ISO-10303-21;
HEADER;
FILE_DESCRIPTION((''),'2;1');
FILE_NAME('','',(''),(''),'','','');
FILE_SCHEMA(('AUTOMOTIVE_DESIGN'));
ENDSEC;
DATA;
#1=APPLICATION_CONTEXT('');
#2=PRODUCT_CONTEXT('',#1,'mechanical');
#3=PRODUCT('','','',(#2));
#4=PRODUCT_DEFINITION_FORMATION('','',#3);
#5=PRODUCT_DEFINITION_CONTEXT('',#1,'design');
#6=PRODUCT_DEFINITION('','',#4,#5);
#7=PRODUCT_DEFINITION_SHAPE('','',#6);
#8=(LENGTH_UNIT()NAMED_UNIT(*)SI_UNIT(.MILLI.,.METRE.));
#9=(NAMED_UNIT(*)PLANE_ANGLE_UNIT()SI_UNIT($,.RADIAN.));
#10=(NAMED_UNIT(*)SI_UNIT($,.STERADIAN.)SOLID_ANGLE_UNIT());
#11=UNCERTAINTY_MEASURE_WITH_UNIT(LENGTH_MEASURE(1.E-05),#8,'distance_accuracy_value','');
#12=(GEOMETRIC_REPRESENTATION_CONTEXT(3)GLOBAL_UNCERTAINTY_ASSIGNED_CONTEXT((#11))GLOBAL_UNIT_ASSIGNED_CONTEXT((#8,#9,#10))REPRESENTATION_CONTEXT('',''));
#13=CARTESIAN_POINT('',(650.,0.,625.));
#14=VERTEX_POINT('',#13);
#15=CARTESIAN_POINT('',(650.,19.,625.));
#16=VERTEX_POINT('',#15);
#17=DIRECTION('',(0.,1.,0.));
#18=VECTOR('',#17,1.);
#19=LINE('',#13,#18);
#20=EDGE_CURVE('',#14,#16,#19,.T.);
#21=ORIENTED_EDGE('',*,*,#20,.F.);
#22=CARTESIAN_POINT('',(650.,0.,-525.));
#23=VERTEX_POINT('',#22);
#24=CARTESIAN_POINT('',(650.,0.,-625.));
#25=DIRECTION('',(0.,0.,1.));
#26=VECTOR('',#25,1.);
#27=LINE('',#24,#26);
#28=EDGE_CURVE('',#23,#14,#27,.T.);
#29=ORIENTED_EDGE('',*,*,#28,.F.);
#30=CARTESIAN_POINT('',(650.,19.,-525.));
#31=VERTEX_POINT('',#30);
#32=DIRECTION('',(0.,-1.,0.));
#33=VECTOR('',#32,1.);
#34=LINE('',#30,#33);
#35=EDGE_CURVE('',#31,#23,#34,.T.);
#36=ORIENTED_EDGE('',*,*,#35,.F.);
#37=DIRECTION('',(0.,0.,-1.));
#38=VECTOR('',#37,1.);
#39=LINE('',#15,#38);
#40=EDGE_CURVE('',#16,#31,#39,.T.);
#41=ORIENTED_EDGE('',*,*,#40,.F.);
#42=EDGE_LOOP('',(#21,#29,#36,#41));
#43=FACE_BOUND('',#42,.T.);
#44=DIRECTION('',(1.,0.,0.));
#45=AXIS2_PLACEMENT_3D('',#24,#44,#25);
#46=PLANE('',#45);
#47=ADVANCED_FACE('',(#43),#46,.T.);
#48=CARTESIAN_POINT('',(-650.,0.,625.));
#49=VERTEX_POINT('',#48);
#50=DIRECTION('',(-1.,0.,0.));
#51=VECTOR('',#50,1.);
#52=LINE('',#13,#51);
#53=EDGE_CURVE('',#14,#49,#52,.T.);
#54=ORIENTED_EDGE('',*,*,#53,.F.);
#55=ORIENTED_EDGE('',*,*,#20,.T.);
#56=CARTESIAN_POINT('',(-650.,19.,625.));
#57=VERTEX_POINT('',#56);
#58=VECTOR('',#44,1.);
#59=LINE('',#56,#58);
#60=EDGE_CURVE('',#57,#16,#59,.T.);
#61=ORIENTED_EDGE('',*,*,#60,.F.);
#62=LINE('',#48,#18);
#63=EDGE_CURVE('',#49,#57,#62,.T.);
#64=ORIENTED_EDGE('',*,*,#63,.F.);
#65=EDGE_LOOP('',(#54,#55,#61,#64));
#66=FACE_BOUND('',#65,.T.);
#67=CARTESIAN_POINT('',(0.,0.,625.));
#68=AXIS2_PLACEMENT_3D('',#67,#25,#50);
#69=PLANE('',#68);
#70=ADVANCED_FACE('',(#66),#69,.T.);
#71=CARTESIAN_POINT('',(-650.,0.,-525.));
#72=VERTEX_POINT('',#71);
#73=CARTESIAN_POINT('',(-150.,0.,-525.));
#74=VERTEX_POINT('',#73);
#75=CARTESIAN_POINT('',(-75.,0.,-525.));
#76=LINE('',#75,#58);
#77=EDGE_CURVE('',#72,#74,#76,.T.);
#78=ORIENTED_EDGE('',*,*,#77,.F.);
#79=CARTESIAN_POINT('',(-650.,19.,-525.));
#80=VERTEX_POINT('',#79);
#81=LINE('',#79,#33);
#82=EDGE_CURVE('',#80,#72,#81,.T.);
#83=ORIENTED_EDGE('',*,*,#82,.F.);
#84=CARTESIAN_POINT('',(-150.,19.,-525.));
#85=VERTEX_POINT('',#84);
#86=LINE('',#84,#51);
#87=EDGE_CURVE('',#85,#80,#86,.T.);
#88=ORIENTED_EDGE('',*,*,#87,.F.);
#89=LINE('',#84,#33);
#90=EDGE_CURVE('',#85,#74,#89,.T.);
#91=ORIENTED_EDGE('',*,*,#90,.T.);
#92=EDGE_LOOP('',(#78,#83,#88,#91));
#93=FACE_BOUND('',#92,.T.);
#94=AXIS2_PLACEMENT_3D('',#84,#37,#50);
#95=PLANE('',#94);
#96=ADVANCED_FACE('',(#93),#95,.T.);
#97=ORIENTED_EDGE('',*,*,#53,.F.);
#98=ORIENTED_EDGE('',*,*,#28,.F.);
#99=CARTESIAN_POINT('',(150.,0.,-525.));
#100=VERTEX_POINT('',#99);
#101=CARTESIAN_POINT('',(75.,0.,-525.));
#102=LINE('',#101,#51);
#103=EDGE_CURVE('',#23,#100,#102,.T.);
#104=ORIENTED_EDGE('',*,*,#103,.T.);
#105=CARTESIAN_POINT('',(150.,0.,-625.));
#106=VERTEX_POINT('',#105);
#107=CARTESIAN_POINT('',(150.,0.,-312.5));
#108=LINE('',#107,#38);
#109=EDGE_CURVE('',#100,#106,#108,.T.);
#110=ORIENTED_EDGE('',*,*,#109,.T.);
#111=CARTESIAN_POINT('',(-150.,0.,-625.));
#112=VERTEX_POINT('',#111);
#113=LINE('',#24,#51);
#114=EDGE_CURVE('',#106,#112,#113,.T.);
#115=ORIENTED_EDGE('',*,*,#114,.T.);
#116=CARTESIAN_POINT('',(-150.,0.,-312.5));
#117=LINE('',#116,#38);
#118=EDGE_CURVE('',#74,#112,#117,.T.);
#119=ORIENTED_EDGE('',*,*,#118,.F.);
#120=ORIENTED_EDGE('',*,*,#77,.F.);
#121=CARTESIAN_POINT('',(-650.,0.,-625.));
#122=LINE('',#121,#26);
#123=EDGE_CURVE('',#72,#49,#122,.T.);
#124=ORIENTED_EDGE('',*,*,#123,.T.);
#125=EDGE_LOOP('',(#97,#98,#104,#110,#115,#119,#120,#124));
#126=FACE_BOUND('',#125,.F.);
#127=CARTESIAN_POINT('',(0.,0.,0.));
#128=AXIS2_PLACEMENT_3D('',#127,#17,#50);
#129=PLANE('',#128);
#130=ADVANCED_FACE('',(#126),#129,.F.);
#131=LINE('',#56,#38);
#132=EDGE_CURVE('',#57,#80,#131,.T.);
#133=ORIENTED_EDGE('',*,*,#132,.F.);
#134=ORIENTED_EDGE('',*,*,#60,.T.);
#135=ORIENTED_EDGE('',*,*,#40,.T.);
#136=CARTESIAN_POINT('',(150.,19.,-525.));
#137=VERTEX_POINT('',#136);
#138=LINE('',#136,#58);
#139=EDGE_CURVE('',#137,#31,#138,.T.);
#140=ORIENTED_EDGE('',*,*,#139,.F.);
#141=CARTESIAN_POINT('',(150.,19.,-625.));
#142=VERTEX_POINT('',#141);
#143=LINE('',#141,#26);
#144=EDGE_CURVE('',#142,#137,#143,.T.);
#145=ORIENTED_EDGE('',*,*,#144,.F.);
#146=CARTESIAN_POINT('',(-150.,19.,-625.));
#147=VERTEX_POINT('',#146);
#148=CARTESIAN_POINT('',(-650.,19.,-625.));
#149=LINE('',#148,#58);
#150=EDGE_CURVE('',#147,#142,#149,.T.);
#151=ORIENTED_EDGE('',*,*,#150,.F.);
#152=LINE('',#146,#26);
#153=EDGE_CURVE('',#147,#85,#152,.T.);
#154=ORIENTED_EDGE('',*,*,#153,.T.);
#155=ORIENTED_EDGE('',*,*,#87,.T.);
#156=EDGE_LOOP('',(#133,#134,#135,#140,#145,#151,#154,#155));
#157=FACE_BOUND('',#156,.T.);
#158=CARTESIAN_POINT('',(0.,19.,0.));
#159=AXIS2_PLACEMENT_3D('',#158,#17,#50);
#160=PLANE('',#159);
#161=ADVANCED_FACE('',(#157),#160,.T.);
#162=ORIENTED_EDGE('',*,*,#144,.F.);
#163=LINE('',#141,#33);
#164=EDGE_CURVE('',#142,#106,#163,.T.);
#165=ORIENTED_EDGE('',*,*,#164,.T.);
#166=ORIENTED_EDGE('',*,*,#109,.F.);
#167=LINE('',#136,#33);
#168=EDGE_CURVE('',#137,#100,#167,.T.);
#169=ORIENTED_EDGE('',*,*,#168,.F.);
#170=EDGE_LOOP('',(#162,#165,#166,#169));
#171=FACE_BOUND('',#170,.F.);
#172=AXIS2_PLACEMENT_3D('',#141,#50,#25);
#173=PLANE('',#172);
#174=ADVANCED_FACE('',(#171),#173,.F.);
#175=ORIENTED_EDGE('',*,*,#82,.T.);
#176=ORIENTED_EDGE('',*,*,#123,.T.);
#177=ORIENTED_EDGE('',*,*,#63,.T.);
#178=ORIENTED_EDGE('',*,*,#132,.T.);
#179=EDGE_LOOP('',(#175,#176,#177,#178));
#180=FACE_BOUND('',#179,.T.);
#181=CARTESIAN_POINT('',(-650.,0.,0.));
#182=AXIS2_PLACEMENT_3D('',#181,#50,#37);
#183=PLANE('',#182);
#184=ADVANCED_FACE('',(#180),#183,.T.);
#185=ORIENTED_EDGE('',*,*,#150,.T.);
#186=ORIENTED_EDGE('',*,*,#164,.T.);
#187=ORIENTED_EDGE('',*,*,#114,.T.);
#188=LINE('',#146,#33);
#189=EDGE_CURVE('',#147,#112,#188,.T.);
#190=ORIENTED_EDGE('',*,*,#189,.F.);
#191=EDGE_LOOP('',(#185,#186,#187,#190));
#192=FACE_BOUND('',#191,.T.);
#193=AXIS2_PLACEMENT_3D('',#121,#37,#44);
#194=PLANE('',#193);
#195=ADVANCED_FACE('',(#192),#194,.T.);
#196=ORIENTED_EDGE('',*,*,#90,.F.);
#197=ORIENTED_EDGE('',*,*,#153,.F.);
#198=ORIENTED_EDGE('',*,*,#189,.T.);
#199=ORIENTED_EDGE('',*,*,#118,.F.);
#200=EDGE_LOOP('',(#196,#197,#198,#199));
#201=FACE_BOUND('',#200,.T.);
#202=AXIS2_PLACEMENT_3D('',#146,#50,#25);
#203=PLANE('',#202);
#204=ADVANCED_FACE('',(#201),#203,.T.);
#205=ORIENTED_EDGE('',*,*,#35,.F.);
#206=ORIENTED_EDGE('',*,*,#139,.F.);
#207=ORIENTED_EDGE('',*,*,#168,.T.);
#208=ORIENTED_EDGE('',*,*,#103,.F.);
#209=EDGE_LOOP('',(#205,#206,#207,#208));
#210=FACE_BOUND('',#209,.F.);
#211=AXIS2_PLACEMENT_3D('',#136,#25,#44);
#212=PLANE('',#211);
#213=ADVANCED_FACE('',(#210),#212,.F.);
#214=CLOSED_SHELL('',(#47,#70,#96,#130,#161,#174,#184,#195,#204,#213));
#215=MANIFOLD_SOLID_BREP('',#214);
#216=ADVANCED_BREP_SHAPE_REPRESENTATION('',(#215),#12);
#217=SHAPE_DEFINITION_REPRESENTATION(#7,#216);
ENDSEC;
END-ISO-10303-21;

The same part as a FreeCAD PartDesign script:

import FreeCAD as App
import Part
import Sketcher

doc = App.newDocument("Part")
body = doc.addObject("PartDesign::Body", "Body")

sketch1 = body.newObject("Sketcher::SketchObject", "Sketch")
sketch1.AttachmentSupport = (doc.getObject("XZ_Plane"), [""])
sketch1.MapMode = "FlatFace"
sketch1.addGeometry(Part.LineSegment(App.Vector(-650, -625, 0), App.Vector(-650, 625, 0)), False)
sketch1.addGeometry(Part.LineSegment(App.Vector(-650, 625, 0), App.Vector(650, 625, 0)), False)
sketch1.addGeometry(Part.LineSegment(App.Vector(650, 625, 0), App.Vector(650, -625, 0)), False)
sketch1.addGeometry(Part.LineSegment(App.Vector(650, -625, 0), App.Vector(-650, -625, 0)), False)
sketch1.addConstraint(Sketcher.Constraint("Coincident", 0, 2, 1, 1))
sketch1.addConstraint(Sketcher.Constraint("Coincident", 1, 2, 2, 1))
sketch1.addConstraint(Sketcher.Constraint("Coincident", 2, 2, 3, 1))
sketch1.addConstraint(Sketcher.Constraint("Coincident", 3, 2, 0, 1))
sketch1.addConstraint(Sketcher.Constraint("Vertical", 0))
sketch1.addConstraint(Sketcher.Constraint("Horizontal", 1))
sketch1.addConstraint(Sketcher.Constraint("Vertical", 2))
sketch1.addConstraint(Sketcher.Constraint("Horizontal", 3))
sketch1.addConstraint(Sketcher.Constraint("Symmetric", 0, 2, 2, 2, -1, 1))
sketch1.addConstraint(Sketcher.Constraint("DistanceX", 1, 1, 1, 2, 1300.0))
sketch1.addConstraint(Sketcher.Constraint("DistanceY", 0, 1, 0, 2, 1250.0))
pad1 = body.newObject("PartDesign::Pad", "Pad")
pad1.Profile = sketch1
pad1.Length = 19
pad1.Reversed = True

sketch2 = body.newObject("Sketcher::SketchObject", "Sketch001")
sketch2.AttachmentSupport = (doc.getObject("XZ_Plane"), [""])
sketch2.MapMode = "FlatFace"
sketch2.AttachmentOffset = App.Placement(App.Vector(0, 0, -19), App.Rotation())
sketch2.addGeometry(Part.LineSegment(App.Vector(650, -525, 0), App.Vector(650, -625, 0)), False)
sketch2.addGeometry(Part.LineSegment(App.Vector(650, -625, 0), App.Vector(150, -625, 0)), False)
sketch2.addGeometry(Part.LineSegment(App.Vector(150, -625, 0), App.Vector(150, -525, 0)), False)
sketch2.addGeometry(Part.LineSegment(App.Vector(150, -525, 0), App.Vector(650, -525, 0)), False)
sketch2.addGeometry(Part.LineSegment(App.Vector(-150, -525, 0), App.Vector(-150, -625, 0)), False)
sketch2.addGeometry(Part.LineSegment(App.Vector(-150, -625, 0), App.Vector(-650, -625, 0)), False)
sketch2.addGeometry(Part.LineSegment(App.Vector(-650, -625, 0), App.Vector(-650, -525, 0)), False)
sketch2.addGeometry(Part.LineSegment(App.Vector(-650, -525, 0), App.Vector(-150, -525, 0)), False)
sketch2.addConstraint(Sketcher.Constraint("Coincident", 0, 2, 1, 1))
sketch2.addConstraint(Sketcher.Constraint("Coincident", 1, 2, 2, 1))
sketch2.addConstraint(Sketcher.Constraint("Coincident", 2, 2, 3, 1))
sketch2.addConstraint(Sketcher.Constraint("Coincident", 3, 2, 0, 1))
sketch2.addConstraint(Sketcher.Constraint("Coincident", 4, 2, 5, 1))
sketch2.addConstraint(Sketcher.Constraint("Coincident", 5, 2, 6, 1))
sketch2.addConstraint(Sketcher.Constraint("Coincident", 6, 2, 7, 1))
sketch2.addConstraint(Sketcher.Constraint("Coincident", 7, 2, 4, 1))
sketch2.addConstraint(Sketcher.Constraint("Vertical", 0))
sketch2.addConstraint(Sketcher.Constraint("Horizontal", 1))
sketch2.addConstraint(Sketcher.Constraint("Vertical", 2))
sketch2.addConstraint(Sketcher.Constraint("Horizontal", 3))
sketch2.addConstraint(Sketcher.Constraint("Vertical", 4))
sketch2.addConstraint(Sketcher.Constraint("Horizontal", 5))
sketch2.addConstraint(Sketcher.Constraint("Vertical", 6))
sketch2.addConstraint(Sketcher.Constraint("Horizontal", 7))
sketch2.addConstraint(Sketcher.Constraint("Symmetric", 1, 2, 4, 2, -2))
sketch2.addConstraint(Sketcher.Constraint("Symmetric", 3, 2, 6, 2, -2))
sketch2.addConstraint(Sketcher.Constraint("DistanceX", 4, 2, 1, 2, 300.0))
sketch2.addConstraint(Sketcher.Constraint("DistanceX", 1, 2, 1, 1, 500.0))
sketch2.addConstraint(Sketcher.Constraint("DistanceY", 0, 2, 0, 1, 100.0))
sketch2.addConstraint(Sketcher.Constraint("DistanceY", 0, 2, -1, 1, 625.0))
pocket1 = body.newObject("PartDesign::Pocket", "Pocket")
pocket1.Profile = sketch2
pocket1.Type = "UpToFirst"
pocket1.Reversed = True

doc.recompute()
